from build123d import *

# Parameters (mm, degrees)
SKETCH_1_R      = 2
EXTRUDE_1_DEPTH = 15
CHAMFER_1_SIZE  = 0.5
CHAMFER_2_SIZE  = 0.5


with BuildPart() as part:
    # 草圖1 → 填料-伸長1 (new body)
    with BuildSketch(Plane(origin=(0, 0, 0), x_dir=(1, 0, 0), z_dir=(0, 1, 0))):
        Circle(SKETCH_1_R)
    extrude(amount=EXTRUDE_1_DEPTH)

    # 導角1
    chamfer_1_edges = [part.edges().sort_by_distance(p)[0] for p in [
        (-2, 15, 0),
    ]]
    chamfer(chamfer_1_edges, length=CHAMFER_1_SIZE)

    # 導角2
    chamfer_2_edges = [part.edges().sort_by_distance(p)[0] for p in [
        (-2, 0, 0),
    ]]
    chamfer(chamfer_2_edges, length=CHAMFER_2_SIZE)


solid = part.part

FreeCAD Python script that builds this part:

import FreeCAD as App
import Part
import Sketcher

V = App.Vector


def edges_at(feature, points):
    """Names of the edges that pass closest to the given points."""
    edges = feature.Shape.Edges
    near = lambda p: min(range(len(edges)), key=lambda i: edges[i].distToShape(Part.Vertex(*p))[0])
    return sorted({f"Edge{near(p) + 1}" for p in points})

doc = App.newDocument("Part")
params = doc.addObject("Spreadsheet::Sheet", "Params")
for row, (alias, value) in enumerate([
    ("sketch1_diameter", "4 mm"),
    ("pad1_length", "15 mm"),
    ("chamfer_size", "0.5 mm"),
    ("chamfer2_size", "0.5 mm"),
], start=1):
    params.set(f"A{row}", alias)
    params.set(f"B{row}", "=" + value)
    params.setAlias(f"B{row}", alias)

body = doc.addObject("PartDesign::Body", "Body")

sketch1 = body.newObject("Sketcher::SketchObject", "Sketch")
sketch1.AttachmentSupport = (doc.getObject("XZ_Plane"), [""])
sketch1.MapMode = "FlatFace"
sketch1.addGeometry(Part.Circle(V(0, 0, 0), V(0, 0, 1), 2), False)
sketch1.addConstraint([
    Sketcher.Constraint("Coincident", 0, 3, -1, 1),
    Sketcher.Constraint("Diameter", 0, 4.0),
])
sketch1.setExpression("Constraints[1]", "Params.sketch1_diameter")
pad1 = body.newObject("PartDesign::Pad", "Pad")
pad1.Profile = sketch1
pad1.setExpression("Length", "Params.pad1_length")
pad1.Reversed = True
doc.recompute()

chamfer = body.newObject("PartDesign::Chamfer", "Chamfer")
chamfer.Base = (pad1, edges_at(pad1, [(-2, 15, 0)]))
chamfer.setExpression("Size", "Params.chamfer_size")
doc.recompute()

chamfer2 = body.newObject("PartDesign::Chamfer", "Chamfer001")
chamfer2.Base = (chamfer, edges_at(chamfer, [(-2, 0, 0)]))
chamfer2.setExpression("Size", "Params.chamfer2_size")

doc.recompute()
